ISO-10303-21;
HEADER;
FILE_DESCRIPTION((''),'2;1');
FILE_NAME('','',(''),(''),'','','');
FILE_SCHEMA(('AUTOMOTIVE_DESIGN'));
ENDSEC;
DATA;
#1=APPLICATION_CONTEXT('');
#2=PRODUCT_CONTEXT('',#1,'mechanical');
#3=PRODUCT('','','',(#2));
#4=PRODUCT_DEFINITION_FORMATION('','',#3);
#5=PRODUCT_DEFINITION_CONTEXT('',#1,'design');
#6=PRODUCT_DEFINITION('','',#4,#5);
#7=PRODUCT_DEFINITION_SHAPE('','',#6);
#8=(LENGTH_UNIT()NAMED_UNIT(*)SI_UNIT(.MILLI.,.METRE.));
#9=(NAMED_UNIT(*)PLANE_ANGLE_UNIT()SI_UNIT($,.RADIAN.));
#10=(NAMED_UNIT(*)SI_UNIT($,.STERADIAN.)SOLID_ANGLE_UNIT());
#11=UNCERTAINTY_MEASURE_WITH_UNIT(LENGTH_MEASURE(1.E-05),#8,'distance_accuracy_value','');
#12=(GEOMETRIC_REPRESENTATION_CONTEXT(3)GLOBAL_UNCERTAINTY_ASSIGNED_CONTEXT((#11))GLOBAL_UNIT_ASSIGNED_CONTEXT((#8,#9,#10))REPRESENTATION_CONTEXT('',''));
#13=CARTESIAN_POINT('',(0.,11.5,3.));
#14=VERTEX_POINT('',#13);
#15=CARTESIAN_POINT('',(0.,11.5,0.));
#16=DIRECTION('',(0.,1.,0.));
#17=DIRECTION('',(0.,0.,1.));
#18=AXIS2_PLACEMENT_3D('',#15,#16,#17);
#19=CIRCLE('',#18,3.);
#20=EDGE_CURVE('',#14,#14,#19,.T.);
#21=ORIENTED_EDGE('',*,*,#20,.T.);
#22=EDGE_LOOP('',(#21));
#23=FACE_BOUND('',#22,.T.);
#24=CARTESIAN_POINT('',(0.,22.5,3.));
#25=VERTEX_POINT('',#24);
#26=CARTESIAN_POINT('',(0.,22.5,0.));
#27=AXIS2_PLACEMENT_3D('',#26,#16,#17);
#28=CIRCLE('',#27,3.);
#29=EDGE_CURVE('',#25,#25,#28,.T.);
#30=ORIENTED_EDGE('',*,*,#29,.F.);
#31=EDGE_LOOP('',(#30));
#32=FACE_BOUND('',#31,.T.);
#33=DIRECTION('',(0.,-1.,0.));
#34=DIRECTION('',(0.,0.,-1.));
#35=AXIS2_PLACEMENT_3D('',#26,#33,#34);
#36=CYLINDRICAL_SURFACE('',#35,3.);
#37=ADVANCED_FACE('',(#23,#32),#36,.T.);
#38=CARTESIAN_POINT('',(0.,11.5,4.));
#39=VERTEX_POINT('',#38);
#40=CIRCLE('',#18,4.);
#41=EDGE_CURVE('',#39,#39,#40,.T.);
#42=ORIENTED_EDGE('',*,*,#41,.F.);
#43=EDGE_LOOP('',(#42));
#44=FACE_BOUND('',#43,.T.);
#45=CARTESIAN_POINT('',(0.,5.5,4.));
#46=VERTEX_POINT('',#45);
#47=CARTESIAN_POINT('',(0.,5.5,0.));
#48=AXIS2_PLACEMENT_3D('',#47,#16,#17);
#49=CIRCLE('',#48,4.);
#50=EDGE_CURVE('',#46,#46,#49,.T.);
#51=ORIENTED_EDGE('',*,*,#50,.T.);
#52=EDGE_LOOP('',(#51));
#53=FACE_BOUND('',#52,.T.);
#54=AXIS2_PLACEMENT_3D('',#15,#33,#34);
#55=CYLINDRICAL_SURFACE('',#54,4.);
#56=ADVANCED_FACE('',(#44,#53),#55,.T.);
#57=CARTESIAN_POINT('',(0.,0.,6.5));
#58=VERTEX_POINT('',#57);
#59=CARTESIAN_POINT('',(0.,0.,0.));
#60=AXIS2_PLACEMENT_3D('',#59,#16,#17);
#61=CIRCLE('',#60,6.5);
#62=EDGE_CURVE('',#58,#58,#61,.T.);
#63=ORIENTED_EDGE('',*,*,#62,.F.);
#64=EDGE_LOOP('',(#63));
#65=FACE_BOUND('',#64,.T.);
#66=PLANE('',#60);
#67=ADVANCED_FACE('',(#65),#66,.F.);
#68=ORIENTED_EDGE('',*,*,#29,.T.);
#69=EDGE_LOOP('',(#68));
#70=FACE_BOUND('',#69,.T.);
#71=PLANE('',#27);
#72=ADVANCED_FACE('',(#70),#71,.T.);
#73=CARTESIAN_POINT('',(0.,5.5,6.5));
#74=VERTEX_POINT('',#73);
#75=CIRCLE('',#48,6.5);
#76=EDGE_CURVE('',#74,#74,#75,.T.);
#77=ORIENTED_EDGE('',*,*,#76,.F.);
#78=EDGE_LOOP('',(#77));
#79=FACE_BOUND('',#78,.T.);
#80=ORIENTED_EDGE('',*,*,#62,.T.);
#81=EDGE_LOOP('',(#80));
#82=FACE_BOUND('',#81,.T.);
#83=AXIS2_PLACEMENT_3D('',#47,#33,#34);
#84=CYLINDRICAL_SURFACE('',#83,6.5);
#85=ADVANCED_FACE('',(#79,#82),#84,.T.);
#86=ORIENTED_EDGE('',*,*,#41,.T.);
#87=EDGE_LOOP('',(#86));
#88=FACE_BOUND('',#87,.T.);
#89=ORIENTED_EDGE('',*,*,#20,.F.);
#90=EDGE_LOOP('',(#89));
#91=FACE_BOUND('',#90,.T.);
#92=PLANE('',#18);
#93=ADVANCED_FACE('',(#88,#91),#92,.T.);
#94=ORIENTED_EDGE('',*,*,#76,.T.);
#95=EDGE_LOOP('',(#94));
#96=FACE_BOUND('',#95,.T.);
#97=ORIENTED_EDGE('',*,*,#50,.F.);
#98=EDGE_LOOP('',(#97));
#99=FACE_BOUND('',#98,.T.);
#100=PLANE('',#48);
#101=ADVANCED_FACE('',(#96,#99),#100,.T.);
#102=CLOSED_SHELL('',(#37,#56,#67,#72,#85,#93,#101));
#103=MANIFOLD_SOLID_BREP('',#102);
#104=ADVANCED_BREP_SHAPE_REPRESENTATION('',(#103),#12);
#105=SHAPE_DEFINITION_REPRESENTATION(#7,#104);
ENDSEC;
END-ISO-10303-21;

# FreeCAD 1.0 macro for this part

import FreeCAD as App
import Part
import Sketcher

V = App.Vector
Q = App.Units.Quantity

doc = App.newDocument("Part")
params = doc.addObject("Spreadsheet::Sheet", "Params")
for row, (alias, value) in enumerate([
    ("sketch1_diameter", "13 mm"),
    ("pad1_length", "5.5 mm"),
    ("sketch2_diameter", "8 mm"),
    ("pad2_length", "6 mm"),
    ("sketch3_diameter", "6 mm"),
    ("pad3_length", "11 mm"),
], start=1):
    params.set(f"A{row}", alias)
    params.set(f"B{row}", "=" + value)
    params.setAlias(f"B{row}", alias)

body = doc.addObject("PartDesign::Body", "Body")

# Sketch on XZ plane
sketch1 = doc.addObject("Sketcher::SketchObject", "Sketch")
body.addObject(sketch1)
sketch1.AttachmentSupport = (doc.XZ_Plane, [""])
sketch1.MapMode = "FlatFace"
sketch1.addGeometry(Part.Circle(V(0, 0, 0), V(0, 0, 1), 6.5), False)
sketch1.addConstraint(Sketcher.Constraint("Coincident", 0, 3, -1, 1))
sketch1.addConstraint(Sketcher.Constraint("Diameter", 0, Q("13 mm")))
sketch1.setExpression("Constraints[1]", "Params.sketch1_diameter")
pad1 = doc.addObject("PartDesign::Pad", "Pad")
body.addObject(pad1)
pad1.Profile = sketch1
pad1.setExpression("Length", "Params.pad1_length")
pad1.Reversed = True

# Sketch on XZ plane
sketch2 = doc.addObject("Sketcher::SketchObject", "Sketch001")
body.addObject(sketch2)
sketch2.AttachmentSupport = (doc.XZ_Plane, [""])
sketch2.MapMode = "FlatFace"
sketch2.AttachmentOffset = App.Placement(V(0, 0, -5.5), App.Rotation())
sketch2.addGeometry(Part.Circle(V(0, 0, 0), V(0, 0, 1), 4), False)
sketch2.addConstraint(Sketcher.Constraint("Coincident", 0, 3, -1, 1))
sketch2.addConstraint(Sketcher.Constraint("Diameter", 0, Q("8 mm")))
sketch2.setExpression("Constraints[1]", "Params.sketch2_diameter")
pad2 = doc.addObject("PartDesign::Pad", "Pad001")
body.addObject(pad2)
pad2.Profile = sketch2
pad2.setExpression("Length", "Params.pad2_length")
pad2.Reversed = True

# Sketch on XZ plane
sketch3 = doc.addObject("Sketcher::SketchObject", "Sketch002")
body.addObject(sketch3)
sketch3.AttachmentSupport = (doc.XZ_Plane, [""])
sketch3.MapMode = "FlatFace"
sketch3.AttachmentOffset = App.Placement(V(0, 0, -11.5), App.Rotation())
sketch3.addGeometry(Part.Circle(V(0, 0, 0), V(0, 0, 1), 3), False)
sketch3.addConstraint(Sketcher.Constraint("Coincident", 0, 3, -1, 1))
sketch3.addConstraint(Sketcher.Constraint("Diameter", 0, Q("6 mm")))
sketch3.setExpression("Constraints[1]", "Params.sketch3_diameter")
pad3 = doc.addObject("PartDesign::Pad", "Pad002")
body.addObject(pad3)
pad3.Profile = sketch3
pad3.setExpression("Length", "Params.pad3_length")
pad3.Reversed = True

doc.recompute()
